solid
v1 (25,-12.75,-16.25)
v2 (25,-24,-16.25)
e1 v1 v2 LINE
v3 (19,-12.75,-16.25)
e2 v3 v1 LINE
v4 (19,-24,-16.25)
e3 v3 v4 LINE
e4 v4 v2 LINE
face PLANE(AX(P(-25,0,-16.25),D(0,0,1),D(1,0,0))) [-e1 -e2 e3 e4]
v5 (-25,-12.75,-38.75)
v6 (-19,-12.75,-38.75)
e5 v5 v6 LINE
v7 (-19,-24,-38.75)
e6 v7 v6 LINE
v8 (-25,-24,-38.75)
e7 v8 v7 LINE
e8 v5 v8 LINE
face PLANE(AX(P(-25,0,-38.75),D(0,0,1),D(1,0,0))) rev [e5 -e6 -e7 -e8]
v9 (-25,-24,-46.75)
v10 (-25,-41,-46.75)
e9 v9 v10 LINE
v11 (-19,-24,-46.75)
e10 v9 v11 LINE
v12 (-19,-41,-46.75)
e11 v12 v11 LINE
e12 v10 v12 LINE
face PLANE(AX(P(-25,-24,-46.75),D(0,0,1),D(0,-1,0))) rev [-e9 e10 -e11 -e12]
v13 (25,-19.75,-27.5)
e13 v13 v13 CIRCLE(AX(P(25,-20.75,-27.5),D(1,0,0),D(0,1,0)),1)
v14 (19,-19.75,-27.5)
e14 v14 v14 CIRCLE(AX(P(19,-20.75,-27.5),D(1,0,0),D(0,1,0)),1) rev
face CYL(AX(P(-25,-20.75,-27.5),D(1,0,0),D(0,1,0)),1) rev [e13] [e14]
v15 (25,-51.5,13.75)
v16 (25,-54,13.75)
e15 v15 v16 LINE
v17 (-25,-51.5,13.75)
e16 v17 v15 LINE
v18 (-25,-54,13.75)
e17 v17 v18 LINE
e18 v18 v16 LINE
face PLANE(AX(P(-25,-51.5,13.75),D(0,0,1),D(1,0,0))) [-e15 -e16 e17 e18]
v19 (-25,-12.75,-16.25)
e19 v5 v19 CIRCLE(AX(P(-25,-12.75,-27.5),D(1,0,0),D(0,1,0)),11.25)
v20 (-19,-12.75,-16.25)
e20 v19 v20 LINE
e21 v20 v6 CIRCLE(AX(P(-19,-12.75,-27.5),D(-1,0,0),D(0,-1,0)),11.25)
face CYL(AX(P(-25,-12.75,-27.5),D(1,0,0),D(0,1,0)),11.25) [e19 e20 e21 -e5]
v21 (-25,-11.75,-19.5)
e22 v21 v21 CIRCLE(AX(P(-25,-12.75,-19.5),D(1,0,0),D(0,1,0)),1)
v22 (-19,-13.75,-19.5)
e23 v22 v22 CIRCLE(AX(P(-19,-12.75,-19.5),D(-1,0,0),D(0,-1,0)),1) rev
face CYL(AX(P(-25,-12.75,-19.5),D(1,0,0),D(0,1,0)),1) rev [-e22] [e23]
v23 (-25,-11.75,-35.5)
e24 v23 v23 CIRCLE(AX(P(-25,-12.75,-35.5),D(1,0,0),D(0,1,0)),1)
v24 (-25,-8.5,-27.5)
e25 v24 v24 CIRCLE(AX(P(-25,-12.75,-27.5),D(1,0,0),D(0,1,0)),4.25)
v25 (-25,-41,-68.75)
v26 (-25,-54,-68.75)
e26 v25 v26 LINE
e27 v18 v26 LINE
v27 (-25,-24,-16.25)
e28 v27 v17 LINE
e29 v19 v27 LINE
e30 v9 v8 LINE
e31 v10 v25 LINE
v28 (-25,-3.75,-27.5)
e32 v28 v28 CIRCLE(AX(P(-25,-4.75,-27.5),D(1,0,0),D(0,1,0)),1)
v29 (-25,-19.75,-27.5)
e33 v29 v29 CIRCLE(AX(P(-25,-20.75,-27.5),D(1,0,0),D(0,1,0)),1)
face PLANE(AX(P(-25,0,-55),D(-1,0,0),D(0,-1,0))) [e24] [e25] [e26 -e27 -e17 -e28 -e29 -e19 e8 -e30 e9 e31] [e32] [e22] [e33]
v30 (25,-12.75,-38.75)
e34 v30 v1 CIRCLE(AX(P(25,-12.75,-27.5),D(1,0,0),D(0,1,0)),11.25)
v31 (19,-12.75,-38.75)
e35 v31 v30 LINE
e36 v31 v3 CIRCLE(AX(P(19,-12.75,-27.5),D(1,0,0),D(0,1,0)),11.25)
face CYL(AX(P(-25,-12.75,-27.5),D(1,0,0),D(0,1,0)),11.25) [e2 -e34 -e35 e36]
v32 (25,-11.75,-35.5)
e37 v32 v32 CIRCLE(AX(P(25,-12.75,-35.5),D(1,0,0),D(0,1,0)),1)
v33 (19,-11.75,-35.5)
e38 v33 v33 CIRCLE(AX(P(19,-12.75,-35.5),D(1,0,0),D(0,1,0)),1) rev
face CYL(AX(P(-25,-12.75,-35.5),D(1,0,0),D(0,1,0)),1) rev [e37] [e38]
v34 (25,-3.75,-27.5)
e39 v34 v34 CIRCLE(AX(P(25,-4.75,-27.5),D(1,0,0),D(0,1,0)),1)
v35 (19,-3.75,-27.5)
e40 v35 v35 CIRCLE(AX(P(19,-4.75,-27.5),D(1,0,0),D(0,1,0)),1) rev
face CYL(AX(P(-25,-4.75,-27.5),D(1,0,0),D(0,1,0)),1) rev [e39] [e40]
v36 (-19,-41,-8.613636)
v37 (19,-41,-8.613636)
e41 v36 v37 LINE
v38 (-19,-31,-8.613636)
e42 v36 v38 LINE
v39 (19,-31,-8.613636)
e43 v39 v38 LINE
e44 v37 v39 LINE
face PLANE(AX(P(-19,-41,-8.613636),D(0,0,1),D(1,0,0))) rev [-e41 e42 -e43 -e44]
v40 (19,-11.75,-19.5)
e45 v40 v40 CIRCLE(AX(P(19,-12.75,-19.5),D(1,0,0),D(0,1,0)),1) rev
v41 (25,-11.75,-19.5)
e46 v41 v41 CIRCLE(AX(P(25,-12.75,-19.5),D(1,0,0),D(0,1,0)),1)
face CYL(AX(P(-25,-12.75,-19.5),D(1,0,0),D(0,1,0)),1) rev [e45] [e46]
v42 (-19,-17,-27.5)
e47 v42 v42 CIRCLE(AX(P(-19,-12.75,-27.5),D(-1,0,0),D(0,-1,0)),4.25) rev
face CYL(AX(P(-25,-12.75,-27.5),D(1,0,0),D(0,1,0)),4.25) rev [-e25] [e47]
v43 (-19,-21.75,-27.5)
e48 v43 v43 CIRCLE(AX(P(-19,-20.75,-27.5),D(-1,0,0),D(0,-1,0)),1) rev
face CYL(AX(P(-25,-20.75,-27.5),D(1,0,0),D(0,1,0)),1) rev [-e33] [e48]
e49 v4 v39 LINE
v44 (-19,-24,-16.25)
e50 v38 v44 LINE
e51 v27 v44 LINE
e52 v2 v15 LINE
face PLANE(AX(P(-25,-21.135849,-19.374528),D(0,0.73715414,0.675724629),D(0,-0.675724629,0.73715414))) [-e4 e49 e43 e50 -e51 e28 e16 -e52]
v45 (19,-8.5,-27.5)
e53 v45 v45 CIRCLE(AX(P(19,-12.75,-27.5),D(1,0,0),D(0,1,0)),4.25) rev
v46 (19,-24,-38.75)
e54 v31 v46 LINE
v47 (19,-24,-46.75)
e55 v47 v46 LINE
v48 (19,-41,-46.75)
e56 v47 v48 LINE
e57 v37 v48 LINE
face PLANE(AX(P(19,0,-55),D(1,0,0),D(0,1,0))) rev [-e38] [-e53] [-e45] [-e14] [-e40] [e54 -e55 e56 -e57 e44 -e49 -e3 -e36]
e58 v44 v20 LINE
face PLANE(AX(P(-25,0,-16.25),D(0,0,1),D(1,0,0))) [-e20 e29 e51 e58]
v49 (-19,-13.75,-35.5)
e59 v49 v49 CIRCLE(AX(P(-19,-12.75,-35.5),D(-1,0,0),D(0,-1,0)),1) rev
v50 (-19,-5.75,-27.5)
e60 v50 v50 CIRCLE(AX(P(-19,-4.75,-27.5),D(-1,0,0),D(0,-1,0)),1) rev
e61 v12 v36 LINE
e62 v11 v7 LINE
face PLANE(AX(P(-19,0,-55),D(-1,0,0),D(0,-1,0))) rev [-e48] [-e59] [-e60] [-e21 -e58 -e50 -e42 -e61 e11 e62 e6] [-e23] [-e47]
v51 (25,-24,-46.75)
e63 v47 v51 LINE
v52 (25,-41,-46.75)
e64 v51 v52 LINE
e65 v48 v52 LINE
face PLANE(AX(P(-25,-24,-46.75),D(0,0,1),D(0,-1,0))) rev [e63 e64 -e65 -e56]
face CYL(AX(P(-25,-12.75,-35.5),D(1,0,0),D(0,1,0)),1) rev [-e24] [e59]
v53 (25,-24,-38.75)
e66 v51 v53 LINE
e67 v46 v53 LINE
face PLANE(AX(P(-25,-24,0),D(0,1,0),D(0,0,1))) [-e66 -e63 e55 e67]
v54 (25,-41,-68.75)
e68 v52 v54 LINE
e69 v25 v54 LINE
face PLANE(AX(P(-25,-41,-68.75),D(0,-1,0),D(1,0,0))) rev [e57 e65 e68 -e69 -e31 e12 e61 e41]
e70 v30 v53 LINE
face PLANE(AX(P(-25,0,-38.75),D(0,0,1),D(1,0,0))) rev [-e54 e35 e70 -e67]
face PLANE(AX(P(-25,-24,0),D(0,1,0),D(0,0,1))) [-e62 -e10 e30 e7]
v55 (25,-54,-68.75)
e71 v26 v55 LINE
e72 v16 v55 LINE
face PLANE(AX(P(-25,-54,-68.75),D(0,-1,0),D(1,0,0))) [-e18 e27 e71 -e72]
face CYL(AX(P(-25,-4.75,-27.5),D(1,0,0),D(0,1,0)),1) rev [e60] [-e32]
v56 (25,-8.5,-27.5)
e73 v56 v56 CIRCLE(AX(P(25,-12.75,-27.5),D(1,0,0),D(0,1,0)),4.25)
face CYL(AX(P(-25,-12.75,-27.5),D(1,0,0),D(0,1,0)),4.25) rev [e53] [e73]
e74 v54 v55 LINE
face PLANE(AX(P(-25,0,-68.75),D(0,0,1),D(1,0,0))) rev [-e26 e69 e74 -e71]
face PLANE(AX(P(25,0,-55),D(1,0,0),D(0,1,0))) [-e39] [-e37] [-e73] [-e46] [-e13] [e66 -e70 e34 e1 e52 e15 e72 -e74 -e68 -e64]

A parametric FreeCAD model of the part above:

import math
import FreeCAD as App
import Part
import Sketcher

V = App.Vector

doc = App.newDocument("Part")
body = doc.addObject("PartDesign::Body", "Body")

sketch1 = body.newObject("Sketcher::SketchObject", "Sketch")
sketch1.AttachmentSupport = (doc.getObject("XY_Plane"), [""])
sketch1.MapMode = "FlatFace"
sketch1.addGeometry(Part.LineSegment(V(-25, 0, 0), V(-25, -170, 0)), False)
sketch1.addGeometry(Part.LineSegment(V(-25, -170, 0), V(25, -170, 0)), False)
sketch1.addGeometry(Part.LineSegment(V(25, -170, 0), V(25, 0, 0)), False)
sketch1.addGeometry(Part.LineSegment(V(25, 0, 0), V(-25, 0, 0)), False)
sketch1.addConstraint(Sketcher.Constraint("Coincident", 0, 2, 1, 1))
sketch1.addConstraint(Sketcher.Constraint("Coincident", 1, 2, 2, 1))
sketch1.addConstraint(Sketcher.Constraint("Coincident", 2, 2, 3, 1))
sketch1.addConstraint(Sketcher.Constraint("Coincident", 3, 2, 0, 1))
sketch1.addConstraint(Sketcher.Constraint("Vertical", 0))
sketch1.addConstraint(Sketcher.Constraint("Horizontal", 1))
sketch1.addConstraint(Sketcher.Constraint("Vertical", 2))
sketch1.addConstraint(Sketcher.Constraint("Horizontal", 3))
sketch1.addConstraint(Sketcher.Constraint("Symmetric", 2, 2, 3, 2, -1, 1))
sketch1.addConstraint(Sketcher.Constraint("DistanceX", 1, 1, 1, 2, 50.0))
sketch1.addConstraint(Sketcher.Constraint("DistanceY", 0, 2, 0, 1, 170.0))
pad1 = body.newObject("PartDesign::Pad", "Pad")
pad1.Profile = sketch1
pad1.Length = 55
pad1.Reversed = True

sketch2 = body.newObject("Sketcher::SketchObject", "Sketch001")
sketch2.AttachmentSupport = (doc.getObject("XY_Plane"), [""])
sketch2.MapMode = "FlatFace"
sketch2.addGeometry(Part.LineSegment(V(-17, 0, 0), V(-17, -27, 0)), False)
sketch2.addGeometry(Part.LineSegment(V(-17, -27, 0), V(17, -27, 0)), False)
sketch2.addGeometry(Part.LineSegment(V(17, -27, 0), V(17, 0, 0)), False)
sketch2.addGeometry(Part.LineSegment(V(17, 0, 0), V(-17, 0, 0)), False)
sketch2.addConstraint(Sketcher.Constraint("Coincident", 0, 2, 1, 1))
sketch2.addConstraint(Sketcher.Constraint("Coincident", 1, 2, 2, 1))
sketch2.addConstraint(Sketcher.Constraint("Coincident", 2, 2, 3, 1))
sketch2.addConstraint(Sketcher.Constraint("Coincident", 3, 2, 0, 1))
sketch2.addConstraint(Sketcher.Constraint("Vertical", 0))
sketch2.addConstraint(Sketcher.Constraint("Horizontal", 1))
sketch2.addConstraint(Sketcher.Constraint("Vertical", 2))
sketch2.addConstraint(Sketcher.Constraint("Horizontal", 3))
sketch2.addConstraint(Sketcher.Constraint("Symmetric", 2, 2, 3, 2, -1, 1))
sketch2.addConstraint(Sketcher.Constraint("DistanceX", 1, 1, 1, 2, 34.0))
sketch2.addConstraint(Sketcher.Constraint("DistanceY", 0, 2, 0, 1, 27.0))
pocket1 = body.newObject("PartDesign::Pocket", "Pocket")
pocket1.Profile = sketch2
pocket1.Type = "ThroughAll"

sketch3 = body.newObject("Sketcher::SketchObject", "Sketch002")
sketch3.AttachmentSupport = (doc.getObject("YZ_Plane"), [""])
sketch3.MapMode = "FlatFace"
sketch3.AttachmentOffset = App.Placement(V(0, 0, 25), App.Rotation())
sketch3.addGeometry(Part.LineSegment(V(0, -45, 0), V(-24, -45, 0)), False)
sketch3.addGeometry(Part.LineSegment(V(-24, -45, 0), V(-24, -55, 0)), False)
sketch3.addGeometry(Part.LineSegment(V(-24, -55, 0), V(0, -55, 0)), False)
sketch3.addGeometry(Part.LineSegment(V(0, -55, 0), V(0, -45, 0)), False)
sketch3.addGeometry(Part.LineSegment(V(0, 0, 0), V(-24, 0, 0)), False)
sketch3.addGeometry(Part.LineSegment(V(-24, 0, 0), V(-24, -10, 0)), False)
sketch3.addGeometry(Part.LineSegment(V(-24, -10, 0), V(0, -10, 0)), False)
sketch3.addGeometry(Part.LineSegment(V(0, -10, 0), V(0, 0, 0)), False)
sketch3.addGeometry(Part.Circle(V(-12.8, -27.5, 0), V(0, 0, 1), 4.2), False)
sketch3.addGeometry(Part.Circle(V(-12.8, -35.5, 0), V(0, 0, 1), 1), False)
sketch3.addGeometry(Part.Circle(V(-4.8, -27.5, 0), V(0, 0, 1), 1), False)
sketch3.addGeometry(Part.Circle(V(-20.8, -27.5, 0), V(0, 0, 1), 1), False)
sketch3.addGeometry(Part.Circle(V(-12.8, -19.5, 0), V(0, 0, 1), 1), False)
sketch3.addConstraint(Sketcher.Constraint("Coincident", 0, 2, 1, 1))
sketch3.addConstraint(Sketcher.Constraint("Coincident", 1, 2, 2, 1))
sketch3.addConstraint(Sketcher.Constraint("Coincident", 2, 2, 3, 1))
sketch3.addConstraint(Sketcher.Constraint("Coincident", 3, 2, 0, 1))
sketch3.addConstraint(Sketcher.Constraint("Coincident", 4, 2, 5, 1))
sketch3.addConstraint(Sketcher.Constraint("Coincident", 5, 2, 6, 1))
sketch3.addConstraint(Sketcher.Constraint("Coincident", 6, 2, 7, 1))
sketch3.addConstraint(Sketcher.Constraint("Coincident", 7, 2, 4, 1))
sketch3.addConstraint(Sketcher.Constraint("Horizontal", 0))
sketch3.addConstraint(Sketcher.Constraint("Vertical", 1))
sketch3.addConstraint(Sketcher.Constraint("Horizontal", 2))
sketch3.addConstraint(Sketcher.Constraint("Vertical", 3))
sketch3.addConstraint(Sketcher.Constraint("Horizontal", 4))
sketch3.addConstraint(Sketcher.Constraint("Vertical", 5))
sketch3.addConstraint(Sketcher.Constraint("Horizontal", 6))
sketch3.addConstraint(Sketcher.Constraint("Vertical", 7))
sketch3.addConstraint(Sketcher.Constraint("Coincident", 7, 2, -1, 1))
sketch3.addConstraint(Sketcher.Constraint("Equal", 9, 10))
sketch3.addConstraint(Sketcher.Constraint("Equal", 10, 11))
sketch3.addConstraint(Sketcher.Constraint("Equal", 11, 12))
sketch3.addConstraint(Sketcher.Constraint("PointOnObject", 2, 2, -2))
sketch3.addConstraint(Sketcher.Constraint("Horizontal", 8, 3, 10, 3))
sketch3.addConstraint(Sketcher.Constraint("Horizontal", 10, 3, 11, 3))
sketch3.addConstraint(Sketcher.Constraint("Vertical", 8, 3, 9, 3))
sketch3.addConstraint(Sketcher.Constraint("Vertical", 9, 3, 12, 3))
sketch3.addConstraint(Sketcher.Constraint("Vertical", 1, 2, 4, 2))
sketch3.addConstraint(Sketcher.Constraint("Equal", 3, 5))
sketch3.addConstraint(Sketcher.Constraint("Diameter", 9, 2.0))
sketch3.addConstraint(Sketcher.Constraint("Diameter", 8, 8.5))
sketch3.addConstraint(Sketcher.Constraint("DistanceX", 0, 2, 0, 1, 24.0))
sketch3.addConstraint(Sketcher.Constraint("DistanceY", 1, 2, 1, 1, 10.0))
sketch3.addConstraint(Sketcher.Constraint("DistanceY", 0, 2, -1, 1, 45.0))
sketch3.addConstraint(Sketcher.Constraint("DistanceY", 9, 3, 8, 3, 8.0))
sketch3.addConstraint(Sketcher.Constraint("DistanceX", 8, 3, 10, 3, 8.0))
sketch3.addConstraint(Sketcher.Constraint("DistanceX", 11, 3, 8, 3, 8.0))
sketch3.addConstraint(Sketcher.Constraint("DistanceY", 8, 3, 12, 3, 8.0))
sketch3.addConstraint(Sketcher.Constraint("DistanceY", 8, 3, -1, 1, 27.5))
sketch3.addConstraint(Sketcher.Constraint("DistanceX", 8, 3, -1, 1, 12.75))
pocket2 = body.newObject("PartDesign::Pocket", "Pocket001")
pocket2.Profile = sketch3
pocket2.Type = "ThroughAll"

sketch4 = body.newObject("Sketcher::SketchObject", "Sketch003")
sketch4.AttachmentSupport = (doc.getObject("XY_Plane"), [""])
sketch4.MapMode = "FlatFace"
sketch4.AttachmentOffset = App.Placement(V(0, 0, -10), App.Rotation())
sketch4.addGeometry(Part.LineSegment(V(-19, 0, 0), V(-19, -24, 0)), False)
sketch4.addGeometry(Part.LineSegment(V(-19, -24, 0), V(-17, -24, 0)), False)
sketch4.addGeometry(Part.LineSegment(V(-17, -24, 0), V(-17, 0, 0)), False)
sketch4.addGeometry(Part.LineSegment(V(-17, 0, 0), V(-19, 0, 0)), False)
sketch4.addGeometry(Part.LineSegment(V(17, 0, 0), V(17, -24, 0)), False)
sketch4.addGeometry(Part.LineSegment(V(17, -24, 0), V(19, -24, 0)), False)
sketch4.addGeometry(Part.LineSegment(V(19, -24, 0), V(19, 0, 0)), False)
sketch4.addGeometry(Part.LineSegment(V(19, 0, 0), V(17, 0, 0)), False)
sketch4.addConstraint(Sketcher.Constraint("Coincident", 0, 2, 1, 1))
sketch4.addConstraint(Sketcher.Constraint("Coincident", 1, 2, 2, 1))
sketch4.addConstraint(Sketcher.Constraint("Coincident", 2, 2, 3, 1))
sketch4.addConstraint(Sketcher.Constraint("Coincident", 3, 2, 0, 1))
sketch4.addConstraint(Sketcher.Constraint("Coincident", 4, 2, 5, 1))
sketch4.addConstraint(Sketcher.Constraint("Coincident", 5, 2, 6, 1))
sketch4.addConstraint(Sketcher.Constraint("Coincident", 6, 2, 7, 1))
sketch4.addConstraint(Sketcher.Constraint("Coincident", 7, 2, 4, 1))
sketch4.addConstraint(Sketcher.Constraint("Vertical", 0))
sketch4.addConstraint(Sketcher.Constraint("Horizontal", 1))
sketch4.addConstraint(Sketcher.Constraint("Vertical", 2))
sketch4.addConstraint(Sketcher.Constraint("Horizontal", 3))
sketch4.addConstraint(Sketcher.Constraint("Vertical", 4))
sketch4.addConstraint(Sketcher.Constraint("Horizontal", 5))
sketch4.addConstraint(Sketcher.Constraint("Vertical", 6))
sketch4.addConstraint(Sketcher.Constraint("Horizontal", 7))
sketch4.addConstraint(Sketcher.Constraint("Symmetric", 3, 2, 6, 2, -1, 1))
sketch4.addConstraint(Sketcher.Constraint("Symmetric", 1, 2, 4, 2, -2))
sketch4.addConstraint(Sketcher.Constraint("PointOnObject", 2, 2, -1))
sketch4.addConstraint(Sketcher.Constraint("DistanceX", 1, 1, 1, 2, 2.0))
sketch4.addConstraint(Sketcher.Constraint("DistanceY", 0, 2, 0, 1, 24.0))
sketch4.addConstraint(Sketcher.Constraint("DistanceX", 0, 2, -1, 1, 19.0))
pocket3 = body.newObject("PartDesign::Pocket", "Pocket002")
pocket3.Profile = sketch4
pocket3.Type = "ThroughAll"

sketch5 = body.newObject("Sketcher::SketchObject", "Sketch004")
sketch5.AttachmentSupport = (doc.getObject("YZ_Plane"), [""])
sketch5.MapMode = "FlatFace"
sketch5.AttachmentOffset = App.Placement(V(0, 0, 25), App.Rotation())
sketch5.addGeometry(Part.LineSegment(V(0, -45, 0), V(0, -10, 0)), False)
sketch5.addGeometry(Part.LineSegment(V(0, -10, 0), V(-24, -10, 0)), False)
sketch5.addGeometry(Part.LineSegment(V(-24, -10, 0), V(-24, -16, 0)), False)
sketch5.addGeometry(Part.LineSegment(V(-24, -16, 0), V(-13, -16, 0)), False)
sketch5.addGeometry(Part.ArcOfCircle(Part.Circle(V(-13, -28, 0), V(0, 0, 1), 11), math.radians(-90), math.radians(90)), False)
sketch5.addGeometry(Part.LineSegment(V(-13, -39, 0), V(-24, -39, 0)), False)
sketch5.addGeometry(Part.LineSegment(V(-24, -39, 0), V(-24, -45, 0)), False)
sketch5.addGeometry(Part.LineSegment(V(-24, -45, 0), V(0, -45, 0)), False)
sketch5.addConstraint(Sketcher.Constraint("Coincident", 0, 2, 1, 1))
sketch5.addConstraint(Sketcher.Constraint("Coincident", 1, 2, 2, 1))
sketch5.addConstraint(Sketcher.Constraint("Coincident", 2, 2, 3, 1))
sketch5.addConstraint(Sketcher.Constraint("Tangent", 3, 2, 4, 2))
sketch5.addConstraint(Sketcher.Constraint("Tangent", 4, 1, 5, 1))
sketch5.addConstraint(Sketcher.Constraint("Coincident", 5, 2, 6, 1))
sketch5.addConstraint(Sketcher.Constraint("Coincident", 6, 2, 7, 1))
sketch5.addConstraint(Sketcher.Constraint("Coincident", 7, 2, 0, 1))
sketch5.addConstraint(Sketcher.Constraint("Vertical", 0))
sketch5.addConstraint(Sketcher.Constraint("Horizontal", 1))
sketch5.addConstraint(Sketcher.Constraint("Vertical", 2))
sketch5.addConstraint(Sketcher.Constraint("Horizontal", 3))
sketch5.addConstraint(Sketcher.Constraint("Horizontal", 5))
sketch5.addConstraint(Sketcher.Constraint("Vertical", 6))
sketch5.addConstraint(Sketcher.Constraint("Horizontal", 7))
sketch5.addConstraint(Sketcher.Constraint("PointOnObject", 0, 2, -2))
sketch5.addConstraint(Sketcher.Constraint("Vertical", 2, 2, 5, 2))
sketch5.addConstraint(Sketcher.Constraint("Equal", 2, 6))
sketch5.addConstraint(Sketcher.Constraint("DistanceX", 1, 2, 1, 1, 24.0))
sketch5.addConstraint(Sketcher.Constraint("DistanceY", 0, 1, 0, 2, 35.0))
sketch5.addConstraint(Sketcher.Constraint("Radius", 4, 11.25))
sketch5.addConstraint(Sketcher.Constraint("DistanceY", 0, 2, -1, 1, 10.0))
sketch5.addConstraint(Sketcher.Constraint("DistanceX", 3, 1, 3, 2, 11.25))
pocket4 = body.newObject("PartDesign::Pocket", "Pocket003")
pocket4.Profile = sketch5
pocket4.Type = "ThroughAll"

sketch6 = body.newObject("Sketcher::SketchObject", "Sketch005")
sketch6.AttachmentSupport = (doc.getObject("XY_Plane"), [""])
sketch6.MapMode = "FlatFace"
sketch6.addGeometry(Part.LineSegment(V(-19, -24, 0), V(-19, -34, 0)), False)
sketch6.addGeometry(Part.LineSegment(V(-19, -34, 0), V(19, -34, 0)), False)
sketch6.addGeometry(Part.LineSegment(V(19, -34, 0), V(19, -24, 0)), False)
sketch6.addGeometry(Part.LineSegment(V(19, -24, 0), V(-19, -24, 0)), False)
sketch6.addConstraint(Sketcher.Constraint("Coincident", 0, 2, 1, 1))
sketch6.addConstraint(Sketcher.Constraint("Coincident", 1, 2, 2, 1))
sketch6.addConstraint(Sketcher.Constraint("Coincident", 2, 2, 3, 1))
sketch6.addConstraint(Sketcher.Constraint("Coincident", 3, 2, 0, 1))
sketch6.addConstraint(Sketcher.Constraint("Vertical", 0))
sketch6.addConstraint(Sketcher.Constraint("Horizontal", 1))
sketch6.addConstraint(Sketcher.Constraint("Vertical", 2))
sketch6.addConstraint(Sketcher.Constraint("Horizontal", 3))
sketch6.addConstraint(Sketcher.Constraint("DistanceX", 1, 1, 1, 2, 38.0))
sketch6.addConstraint(Sketcher.Constraint("DistanceY", 0, 2, 0, 1, 10.0))
sketch6.addConstraint(Sketcher.Constraint("DistanceX", 0, 2, -1, 1, 19.0))
sketch6.addConstraint(Sketcher.Constraint("DistanceY", 0, 2, -1, 1, 34.0))
pocket5 = body.newObject("PartDesign::Pocket", "Pocket004")
pocket5.Profile = sketch6
pocket5.Type = "ThroughAll"

sketch7 = body.newObject("Sketcher::SketchObject", "Sketch006")
sketch7.AttachmentSupport = (doc.getObject("YZ_Plane"), [""])
sketch7.MapMode = "FlatFace"
sketch7.AttachmentOffset = App.Placement(V(0, 0, 25), App.Rotation())
sketch7.addGeometry(Part.LineSegment(V(-132.5, -13.2, 0), V(-167.8, -13.2, 0)), False)
sketch7.addGeometry(Part.LineSegment(V(-167.8, -13.2, 0), V(-167.8, 0, 0)), False)
sketch7.addGeometry(Part.LineSegment(V(-167.8, 0, 0), V(-170, 0, 0)), False)
sketch7.addGeometry(Part.LineSegment(V(-170, 0, 0), V(-170, -55, 0)), False)
sketch7.addGeometry(Part.LineSegment(V(-170, -55, 0), V(-167.8, -55, 0)), False)
sketch7.addGeometry(Part.LineSegment(V(-167.8, -55, 0), V(-167.8, -41.8, 0)), False)
sketch7.addGeometry(Part.LineSegment(V(-167.8, -41.8, 0), V(-132.5, -41.8, 0)), False)
sketch7.addGeometry(Part.LineSegment(V(-132.5, -41.8, 0), V(-132.5, -13.2, 0)), False)
sketch7.addConstraint(Sketcher.Constraint("Coincident", 0, 2, 1, 1))
sketch7.addConstraint(Sketcher.Constraint("Coincident", 1, 2, 2, 1))
sketch7.addConstraint(Sketcher.Constraint("Coincident", 2, 2, 3, 1))
sketch7.addConstraint(Sketcher.Constraint("Coincident", 3, 2, 4, 1))
sketch7.addConstraint(Sketcher.Constraint("Coincident", 4, 2, 5, 1))
sketch7.addConstraint(Sketcher.Constraint("Coincident", 5, 2, 6, 1))
sketch7.addConstraint(Sketcher.Constraint("Coincident", 6, 2, 7, 1))
sketch7.addConstraint(Sketcher.Constraint("Coincident", 7, 2, 0, 1))
sketch7.addConstraint(Sketcher.Constraint("Horizontal", 0))
sketch7.addConstraint(Sketcher.Constraint("Vertical", 1))
sketch7.addConstraint(Sketcher.Constraint("Horizontal", 2))
sketch7.addConstraint(Sketcher.Constraint("Vertical", 3))
sketch7.addConstraint(Sketcher.Constraint("Horizontal", 4))
sketch7.addConstraint(Sketcher.Constraint("Vertical", 5))
sketch7.addConstraint(Sketcher.Constraint("Horizontal", 6))
sketch7.addConstraint(Sketcher.Constraint("Vertical", 7))
sketch7.addConstraint(Sketcher.Constraint("PointOnObject", 1, 2, -1))
sketch7.addConstraint(Sketcher.Constraint("Vertical", 1, 2, 4, 2))
sketch7.addConstraint(Sketcher.Constraint("Equal", 1, 5))
sketch7.addConstraint(Sketcher.Constraint("DistanceY", 3, 2, 3, 1, 55.0))
sketch7.addConstraint(Sketcher.Constraint("DistanceY", 7, 1, 7, 2, 28.5))
sketch7.addConstraint(Sketcher.Constraint("DistanceX", 2, 2, -1, 1, 170.0))
sketch7.addConstraint(Sketcher.Constraint("DistanceX", 0, 2, 0, 1, 35.25))
sketch7.addConstraint(Sketcher.Constraint("DistanceX", 2, 2, 2, 1, 2.25))
pocket6 = body.newObject("PartDesign::Pocket", "Pocket005")
pocket6.Profile = sketch7
pocket6.Type = "ThroughAll"

sketch8 = body.newObject("Sketcher::SketchObject", "Sketch007")
sketch8.AttachmentSupport = (doc.getObject("XY_Plane"), [""])
sketch8.MapMode = "FlatFace"
sketch8.addGeometry(Part.LineSegment(V(-17, -132, 0), V(-17, -168, 0)), False)
sketch8.addGeometry(Part.LineSegment(V(-17, -168, 0), V(17, -168, 0)), False)
sketch8.addGeometry(Part.LineSegment(V(17, -168, 0), V(17, -132, 0)), False)
sketch8.addGeometry(Part.LineSegment(V(17, -132, 0), V(-17, -132, 0)), False)
sketch8.addConstraint(Sketcher.Constraint("Coincident", 0, 2, 1, 1))
sketch8.addConstraint(Sketcher.Constraint("Coincident", 1, 2, 2, 1))
sketch8.addConstraint(Sketcher.Constraint("Coincident", 2, 2, 3, 1))
sketch8.addConstraint(Sketcher.Constraint("Coincident", 3, 2, 0, 1))
sketch8.addConstraint(Sketcher.Constraint("Vertical", 0))
sketch8.addConstraint(Sketcher.Constraint("Horizontal", 1))
sketch8.addConstraint(Sketcher.Constraint("Vertical", 2))
sketch8.addConstraint(Sketcher.Constraint("Horizontal", 3))
sketch8.addConstraint(Sketcher.Constraint("DistanceX", 1, 1, 1, 2, 34.0))
sketch8.addConstraint(Sketcher.Constraint("DistanceX", 0, 2, -1, 1, 17.0))
sketch8.addConstraint(Sketcher.Constraint("DistanceY", 0, 2, 0, 1, 35.25))
sketch8.addConstraint(Sketcher.Constraint("DistanceY", 2, 2, -1, 1, 132.5))
pocket7 = body.newObject("PartDesign::Pocket", "Pocket006")
pocket7.Profile = sketch8
pocket7.Type = "ThroughAll"

sketch9 = body.newObject("Sketcher::SketchObject", "Sketch008")
sketch9.AttachmentSupport = (doc.getObject("YZ_Plane"), [""])
sketch9.MapMode = "FlatFace"
sketch9.AttachmentOffset = App.Placement(V(0, 0, 25), App.Rotation())
sketch9.addGeometry(Part.ArcOfCircle(Part.Circle(V(-168, -28, 0), V(0, 0, 1), 10), math.radians(0), math.radians(90)), False)
sketch9.addGeometry(Part.ArcOfCircle(Part.Circle(V(-168, -27, 0), V(0, 0, 1), 10), math.radians(-90), math.radians(0)), False)
sketch9.addGeometry(Part.LineSegment(V(-168, -38, 0), V(-168, -55, 0)), False)
sketch9.addGeometry(Part.LineSegment(V(-168, -55, 0), V(-148, -55, 0)), False)
sketch9.addGeometry(Part.LineSegment(V(-148, -55, 0), V(-148, 0, 0)), False)
sketch9.addGeometry(Part.LineSegment(V(-148, 0, 0), V(-168, 0, 0)), False)
sketch9.addGeometry(Part.LineSegment(V(-168, 0, 0), V(-168, -17, 0)), False)
sketch9.addConstraint(Sketcher.Constraint("Tangent", 0, 1, 1, 2))
sketch9.addConstraint(Sketcher.Constraint("Coincident", 1, 1, 2, 1))
sketch9.addConstraint(Sketcher.Constraint("Coincident", 2, 2, 3, 1))
sketch9.addConstraint(Sketcher.Constraint("Coincident", 3, 2, 4, 1))
sketch9.addConstraint(Sketcher.Constraint("Coincident", 4, 2, 5, 1))
sketch9.addConstraint(Sketcher.Constraint("Coincident", 5, 2, 6, 1))
sketch9.addConstraint(Sketcher.Constraint("Coincident", 6, 2, 0, 2))
sketch9.addConstraint(Sketcher.Constraint("Vertical", 2))
sketch9.addConstraint(Sketcher.Constraint("Horizontal", 3))
sketch9.addConstraint(Sketcher.Constraint("Vertical", 4))
sketch9.addConstraint(Sketcher.Constraint("Horizontal", 5))
sketch9.addConstraint(Sketcher.Constraint("Vertical", 6))
sketch9.addConstraint(Sketcher.Constraint("Equal", 0, 1))
sketch9.addConstraint(Sketcher.Constraint("PointOnObject", 4, 2, -1))
sketch9.addConstraint(Sketcher.Constraint("Horizontal", 1, 3, 0, 1))
sketch9.addConstraint(Sketcher.Constraint("Vertical", 0, 3, 1, 1))
sketch9.addConstraint(Sketcher.Constraint("Vertical", 2, 2, 5, 2))
sketch9.addConstraint(Sketcher.Constraint("Equal", 2, 6))
sketch9.addConstraint(Sketcher.Constraint("DistanceY", 4, 1, 4, 2, 55.0))
sketch9.addConstraint(Sketcher.Constraint("Radius", 0, 10.25))
sketch9.addConstraint(Sketcher.Constraint("DistanceX", 0, 1, 3, 2, 10.0))
sketch9.addConstraint(Sketcher.Constraint("DistanceX", 0, 1, -1, 1, 157.5))
pocket8 = body.newObject("PartDesign::Pocket", "Pocket007")
pocket8.Profile = sketch9
pocket8.Type = "ThroughAll"

sketch10 = body.newObject("Sketcher::SketchObject", "Sketch009")
sketch10.AttachmentSupport = (doc.getObject("YZ_Plane"), [""])
sketch10.MapMode = "FlatFace"
sketch10.AttachmentOffset = App.Placement(V(0, 0, 25), App.Rotation())
sketch10.addGeometry(Part.LineSegment(V(-132, -13, 0), V(-148, -13, 0)), False)
sketch10.addGeometry(Part.LineSegment(V(-148, -13, 0), V(-148, -42, 0)), False)
sketch10.addGeometry(Part.LineSegment(V(-148, -42, 0), V(-132, -42, 0)), False)
sketch10.addGeometry(Part.LineSegment(V(-132, -42, 0), V(-132, -13, 0)), False)
sketch10.addConstraint(Sketcher.Constraint("Coincident", 0, 2, 1, 1))
sketch10.addConstraint(Sketcher.Constraint("Coincident", 1, 2, 2, 1))
sketch10.addConstraint(Sketcher.Constraint("Coincident", 2, 2, 3, 1))
sketch10.addConstraint(Sketcher.Constraint("Coincident", 3, 2, 0, 1))
sketch10.addConstraint(Sketcher.Constraint("Horizontal", 0))
sketch10.addConstraint(Sketcher.Constraint("Vertical", 1))
sketch10.addConstraint(Sketcher.Constraint("Horizontal", 2))
sketch10.addConstraint(Sketcher.Constraint("Vertical", 3))
sketch10.addConstraint(Sketcher.Constraint("DistanceX", 0, 2, 0, 1, 15.0))
sketch10.addConstraint(Sketcher.Constraint("DistanceY", 1, 2, 1, 1, 28.5))
sketch10.addConstraint(Sketcher.Constraint("DistanceX", 0, 2, -1, 1, 147.5))
sketch10.addConstraint(Sketcher.Constraint("DistanceY", 0, 2, -1, 1, 13.25))
pad2 = body.newObject("PartDesign::Pad", "Pad001")
pad2.Profile = sketch10
pad2.Length = 8
pad2.Reversed = True
doc.recompute()

mirrored = body.newObject("PartDesign::Mirrored", "Mirrored")
mirrored.Originals = [pad2]
mirrored.MirrorPlane = (doc.getObject("YZ_Plane"), [""])
body.Tip = mirrored

sketch11 = body.newObject("Sketcher::SketchObject", "Sketch010")
sketch11.AttachmentSupport = (doc.getObject("XY_Plane"), [""])
sketch11.MapMode = "FlatFace"
sketch11.addGeometry(Part.LineSegment(V(-17, -132, 0), V(-17, -158, 0)), False)
sketch11.addGeometry(Part.LineSegment(V(-17, -158, 0), V(17, -158, 0)), False)
sketch11.addGeometry(Part.LineSegment(V(17, -158, 0), V(17, -132, 0)), False)
sketch11.addGeometry(Part.LineSegment(V(17, -132, 0), V(-17, -132, 0)), False)
sketch11.addConstraint(Sketcher.Constraint("Coincident", 0, 2, 1, 1))
sketch11.addConstraint(Sketcher.Constraint("Coincident", 1, 2, 2, 1))
sketch11.addConstraint(Sketcher.Constraint("Coincident", 2, 2, 3, 1))
sketch11.addConstraint(Sketcher.Constraint("Coincident", 3, 2, 0, 1))
sketch11.addConstraint(Sketcher.Constraint("Vertical", 0))
sketch11.addConstraint(Sketcher.Constraint("Horizontal", 1))
sketch11.addConstraint(Sketcher.Constraint("Vertical", 2))
sketch11.addConstraint(Sketcher.Constraint("Horizontal", 3))
sketch11.addConstraint(Sketcher.Constraint("DistanceX", 1, 1, 1, 2, 34.0))
sketch11.addConstraint(Sketcher.Constraint("DistanceX", 0, 2, -1, 1, 17.0))
sketch11.addConstraint(Sketcher.Constraint("DistanceY", 0, 2, 0, 1, 25.25))
sketch11.addConstraint(Sketcher.Constraint("DistanceY", 2, 2, -1, 1, 132.5))
pad3 = body.newObject("PartDesign::Pad", "Pad002")
pad3.Profile = sketch11
pad3.Length = 13.25
pad3.Reversed = True
doc.recompute()

datumplane = body.newObject("PartDesign::Plane", "DatumPlane")
datumplane.AttachmentSupport = (doc.getObject("XY_Plane"), [""])
datumplane.MapMode = "FlatFace"
datumplane.AttachmentOffset = App.Placement(V(0, 0, -27.5), App.Rotation())
mirrored2 = body.newObject("PartDesign::Mirrored", "Mirrored001")
mirrored2.Originals = [pad3]
mirrored2.MirrorPlane = (datumplane, [""])
body.Tip = mirrored2

sketch12 = body.newObject("Sketcher::SketchObject", "Sketch011")
sketch12.AttachmentSupport = (doc.getObject("YZ_Plane"), [""])
sketch12.MapMode = "FlatFace"
sketch12.AttachmentOffset = App.Placement(V(0, 0, 25), App.Rotation())
sketch12.addGeometry(Part.Circle(V(-135.8, -16.5, 0), V(0, 0, 1), 4.5), False)
sketch12.addGeometry(Part.Circle(V(-135.8, -38.5, 0), V(0, 0, 1), 4.5), False)
sketch12.addConstraint(Sketcher.Constraint("Equal", 0, 1))
sketch12.addConstraint(Sketcher.Constraint("Vertical", 0, 3, 1, 3))
sketch12.addConstraint(Sketcher.Constraint("Diameter", 0, 9.0))
sketch12.addConstraint(Sketcher.Constraint("DistanceY", 1, 3, 0, 3, 22.0))
sketch12.addConstraint(Sketcher.Constraint("DistanceY", 0, 3, -1, 1, 16.5))
sketch12.addConstraint(Sketcher.Constraint("DistanceX", 0, 3, -1, 1, 135.75))
pocket9 = body.newObject("PartDesign::Pocket", "Pocket008")
pocket9.Profile = sketch12
pocket9.Length = 8
doc.recompute()

mirrored3 = body.newObject("PartDesign::Mirrored", "Mirrored002")
mirrored3.Originals = [pocket9]
mirrored3.MirrorPlane = (doc.getObject("YZ_Plane"), [""])
body.Tip = mirrored3

sketch13 = body.newObject("Sketcher::SketchObject", "Sketch012")
sketch13.AttachmentSupport = (doc.getObject("YZ_Plane"), [""])
sketch13.MapMode = "FlatFace"
sketch13.AttachmentOffset = App.Placement(V(0, 0, 25), App.Rotation())
sketch13.addGeometry(Part.LineSegment(V(-52, -55, 0), V(-52, 0, 0)), False)
sketch13.addGeometry(Part.LineSegment(V(-52, 0, 0), V(-158, 0, 0)), False)
sketch13.addGeometry(Part.LineSegment(V(-158, 0, 0), V(-158, -55, 0)), False)
sketch13.addGeometry(Part.LineSegment(V(-158, -55, 0), V(-52, -55, 0)), False)
sketch13.addConstraint(Sketcher.Constraint("Coincident", 0, 2, 1, 1))
sketch13.addConstraint(Sketcher.Constraint("Coincident", 1, 2, 2, 1))
sketch13.addConstraint(Sketcher.Constraint("Coincident", 2, 2, 3, 1))
sketch13.addConstraint(Sketcher.Constraint("Coincident", 3, 2, 0, 1))
sketch13.addConstraint(Sketcher.Constraint("Vertical", 0))
sketch13.addConstraint(Sketcher.Constraint("Horizontal", 1))
sketch13.addConstraint(Sketcher.Constraint("Vertical", 2))
sketch13.addConstraint(Sketcher.Constraint("Horizontal", 3))
sketch13.addConstraint(Sketcher.Constraint("PointOnObject", 0, 2, -1))
sketch13.addConstraint(Sketcher.Constraint("DistanceY", 0, 1, 0, 2, 55.0))
sketch13.addConstraint(Sketcher.Constraint("DistanceX", 1, 2, 1, 1, 106.25))
sketch13.addConstraint(Sketcher.Constraint("DistanceX", 0, 2, -1, 1, 51.5))
pocket10 = body.newObject("PartDesign::Pocket", "Pocket009")
pocket10.Profile = sketch13
pocket10.Length = 175.384812

sketch14 = body.newObject("Sketcher::SketchObject", "Sketch013")
sketch14.AttachmentSupport = (doc.getObject("YZ_Plane"), [""])
sketch14.MapMode = "FlatFace"
sketch14.AttachmentOffset = App.Placement(V(0, 0, 25), App.Rotation())
sketch14.addGeometry(Part.LineSegment(V(-24, 71, 0), V(-52, 71, 0)), False)
sketch14.addGeometry(Part.LineSegment(V(-52, 71, 0), V(-52, -69, 0)), False)
sketch14.addGeometry(Part.LineSegment(V(-52, -69, 0), V(-24, -69, 0)), False)
sketch14.addGeometry(Part.LineSegment(V(-24, -69, 0), V(-24, 71, 0)), False)
sketch14.addConstraint(Sketcher.Constraint("Coincident", 0, 2, 1, 1))
sketch14.addConstraint(Sketcher.Constraint("Coincident", 1, 2, 2, 1))
sketch14.addConstraint(Sketcher.Constraint("Coincident", 2, 2, 3, 1))
sketch14.addConstraint(Sketcher.Constraint("Coincident", 3, 2, 0, 1))
sketch14.addConstraint(Sketcher.Constraint("Horizontal", 0))
sketch14.addConstraint(Sketcher.Constraint("Vertical", 1))
sketch14.addConstraint(Sketcher.Constraint("Horizontal", 2))
sketch14.addConstraint(Sketcher.Constraint("Vertical", 3))
sketch14.addConstraint(Sketcher.Constraint("DistanceY", 1, 2, 1, 1, 140.0))
sketch14.addConstraint(Sketcher.Constraint("DistanceX", 0, 2, 0, 1, 27.5))
sketch14.addConstraint(Sketcher.Constraint("DistanceX", 2, 2, -1, 1, 24.0))
sketch14.addConstraint(Sketcher.Constraint("DistanceY", -1, 1, 0, 2, 71.25))
pad4 = body.newObject("PartDesign::Pad", "Pad003")
pad4.Profile = sketch14
pad4.Length = 50
pad4.Reversed = True

sketch15 = body.newObject("Sketcher::SketchObject", "Sketch014")
sketch15.AttachmentSupport = (doc.getObject("XY_Plane"), [""])
sketch15.MapMode = "FlatFace"
sketch15.AttachmentOffset = App.Placement(V(0, 0, 71.25), App.Rotation())
sketch15.addGeometry(Part.LineSegment(V(-19, -24, 0), V(-19, -31, 0)), False)
sketch15.addGeometry(Part.LineSegment(V(-19, -31, 0), V(19, -31, 0)), False)
sketch15.addGeometry(Part.LineSegment(V(19, -31, 0), V(19, -24, 0)), False)
sketch15.addGeometry(Part.LineSegment(V(19, -24, 0), V(-19, -24, 0)), False)
sketch15.addConstraint(Sketcher.Constraint("Coincident", 0, 2, 1, 1))
sketch15.addConstraint(Sketcher.Constraint("Coincident", 1, 2, 2, 1))
sketch15.addConstraint(Sketcher.Constraint("Coincident", 2, 2, 3, 1))
sketch15.addConstraint(Sketcher.Constraint("Coincident", 3, 2, 0, 1))
sketch15.addConstraint(Sketcher.Constraint("Vertical", 0))
sketch15.addConstraint(Sketcher.Constraint("Horizontal", 1))
sketch15.addConstraint(Sketcher.Constraint("Vertical", 2))
sketch15.addConstraint(Sketcher.Constraint("Horizontal", 3))
sketch15.addConstraint(Sketcher.Constraint("DistanceX", 1, 1, 1, 2, 38.0))
sketch15.addConstraint(Sketcher.Constraint("DistanceY", 0, 2, 0, 1, 7.0))
sketch15.addConstraint(Sketcher.Constraint("DistanceX", 0, 2, -1, 1, 19.0))
sketch15.addConstraint(Sketcher.Constraint("DistanceY", 0, 2, -1, 1, 31.0))
pocket11 = body.newObject("PartDesign::Pocket", "Pocket010")
pocket11.Profile = sketch15
pocket11.Type = "ThroughAll"

sketch16 = body.newObject("Sketcher::SketchObject", "Sketch015")
sketch16.AttachmentSupport = (doc.getObject("YZ_Plane"), [""])
sketch16.MapMode = "FlatFace"
sketch16.AttachmentOffset = App.Placement(V(0, 0, 25), App.Rotation())
sketch16.addGeometry(Part.LineSegment(V(-24, 71, 0), V(-52, 71, 0)), False)
sketch16.addGeometry(Part.LineSegment(V(-52, 71, 0), V(-52, 14, 0)), False)
sketch16.addGeometry(Part.LineSegment(V(-52, 14, 0), V(-24, 14, 0)), False)
sketch16.addGeometry(Part.LineSegment(V(-24, 14, 0), V(-24, 71, 0)), False)
sketch16.addConstraint(Sketcher.Constraint("Coincident", 0, 2, 1, 1))
sketch16.addConstraint(Sketcher.Constraint("Coincident", 1, 2, 2, 1))
sketch16.addConstraint(Sketcher.Constraint("Coincident", 2, 2, 3, 1))
sketch16.addConstraint(Sketcher.Constraint("Coincident", 3, 2, 0, 1))
sketch16.addConstraint(Sketcher.Constraint("Horizontal", 0))
sketch16.addConstraint(Sketcher.Constraint("Vertical", 1))
sketch16.addConstraint(Sketcher.Constraint("Horizontal", 2))
sketch16.addConstraint(Sketcher.Constraint("Vertical", 3))
sketch16.addConstraint(Sketcher.Constraint("DistanceX", 0, 2, 0, 1, 27.5))
sketch16.addConstraint(Sketcher.Constraint("DistanceY", 1, 2, 1, 1, 57.5))
sketch16.addConstraint(Sketcher.Constraint("DistanceX", 2, 2, -1, 1, 24.0))
sketch16.addConstraint(Sketcher.Constraint("DistanceY", -1, 1, 0, 2, 71.25))
pocket12 = body.newObject("PartDesign::Pocket", "Pocket011")
pocket12.Profile = sketch16
pocket12.Type = "ThroughAll"

sketch17 = body.newObject("Sketcher::SketchObject", "Sketch016")
sketch17.AttachmentSupport = (doc.getObject("YZ_Plane"), [""])
sketch17.MapMode = "FlatFace"
sketch17.AttachmentOffset = App.Placement(V(0, 0, 25), App.Rotation())
sketch17.addGeometry(Part.LineSegment(V(-52, 14, 0), V(-24, -16, 0)), False)
sketch17.addGeometry(Part.LineSegment(V(-24, -16, 0), V(-24, 14, 0)), False)
sketch17.addGeometry(Part.LineSegment(V(-24, 14, 0), V(-52, 14, 0)), False)
sketch17.addConstraint(Sketcher.Constraint("Coincident", 0, 2, 1, 1))
sketch17.addConstraint(Sketcher.Constraint("Coincident", 1, 2, 2, 1))
sketch17.addConstraint(Sketcher.Constraint("Coincident", 2, 2, 0, 1))
sketch17.addConstraint(Sketcher.Constraint("Vertical", 1))
sketch17.addConstraint(Sketcher.Constraint("Horizontal", 2))
sketch17.addConstraint(Sketcher.Constraint("DistanceY", 1, 1, 1, 2, 30.0))
sketch17.addConstraint(Sketcher.Constraint("DistanceX", 2, 2, 2, 1, 27.5))
sketch17.addConstraint(Sketcher.Constraint("DistanceX", 0, 2, -1, 1, 24.0))
sketch17.addConstraint(Sketcher.Constraint("DistanceY", 0, 2, -1, 1, 16.25))
pocket13 = body.newObject("PartDesign::Pocket", "Pocket012")
pocket13.Profile = sketch17
pocket13.Type = "ThroughAll"

sketch18 = body.newObject("Sketcher::SketchObject", "Sketch017")
sketch18.AttachmentSupport = (doc.getObject("YZ_Plane"), [""])
sketch18.MapMode = "FlatFace"
sketch18.AttachmentOffset = App.Placement(V(0, 0, 25), App.Rotation())
sketch18.addGeometry(Part.LineSegment(V(-51.5, 13.8, 0), V(-54, 13.8, 0)), False)
sketch18.addGeometry(Part.LineSegment(V(-54, 13.8, 0), V(-54, -68.8, 0)), False)
sketch18.addGeometry(Part.LineSegment(V(-54, -68.8, 0), V(-51.5, -68.8, 0)), False)
sketch18.addGeometry(Part.LineSegment(V(-51.5, -68.8, 0), V(-51.5, 13.8, 0)), False)
sketch18.addConstraint(Sketcher.Constraint("Coincident", 0, 2, 1, 1))
sketch18.addConstraint(Sketcher.Constraint("Coincident", 1, 2, 2, 1))
sketch18.addConstraint(Sketcher.Constraint("Coincident", 2, 2, 3, 1))
sketch18.addConstraint(Sketcher.Constraint("Coincident", 3, 2, 0, 1))
sketch18.addConstraint(Sketcher.Constraint("Horizontal", 0))
sketch18.addConstraint(Sketcher.Constraint("Vertical", 1))
sketch18.addConstraint(Sketcher.Constraint("Horizontal", 2))
sketch18.addConstraint(Sketcher.Constraint("Vertical", 3))
sketch18.addConstraint(Sketcher.Constraint("DistanceX", 0, 2, 0, 1, 2.5))
sketch18.addConstraint(Sketcher.Constraint("DistanceY", 1, 2, 1, 1, 82.5))
sketch18.addConstraint(Sketcher.Constraint("DistanceX", 0, 2, -1, 1, 54.0))
sketch18.addConstraint(Sketcher.Constraint("DistanceY", -1, 1, 0, 2, 13.75))
pad5 = body.newObject("PartDesign::Pad", "Pad004")
pad5.Profile = sketch18
pad5.Length = 50
pad5.Reversed = True

sketch19 = body.newObject("Sketcher::SketchObject", "Sketch018")
sketch19.AttachmentSupport = (doc.getObject("YZ_Plane"), [""])
sketch19.MapMode = "FlatFace"
sketch19.AttachmentOffset = App.Placement(V(0, 0, 25), App.Rotation())
sketch19.addGeometry(Part.LineSegment(V(-24, -47, 0), V(-41, -47, 0)), False)
sketch19.addGeometry(Part.LineSegment(V(-41, -47, 0), V(-41, -69, 0)), False)
sketch19.addGeometry(Part.LineSegment(V(-41, -69, 0), V(-24, -69, 0)), False)
sketch19.addGeometry(Part.LineSegment(V(-24, -69, 0), V(-24, -47, 0)), False)
sketch19.addConstraint(Sketcher.Constraint("Coincident", 0, 2, 1, 1))
sketch19.addConstraint(Sketcher.Constraint("Coincident", 1, 2, 2, 1))
sketch19.addConstraint(Sketcher.Constraint("Coincident", 2, 2, 3, 1))
sketch19.addConstraint(Sketcher.Constraint("Coincident", 3, 2, 0, 1))
sketch19.addConstraint(Sketcher.Constraint("Horizontal", 0))
sketch19.addConstraint(Sketcher.Constraint("Vertical", 1))
sketch19.addConstraint(Sketcher.Constraint("Horizontal", 2))
sketch19.addConstraint(Sketcher.Constraint("Vertical", 3))
sketch19.addConstraint(Sketcher.Constraint("DistanceX", 0, 2, 0, 1, 17.0))
sketch19.addConstraint(Sketcher.Constraint("DistanceY", 1, 2, 1, 1, 22.0))
sketch19.addConstraint(Sketcher.Constraint("DistanceX", 0, 2, -1, 1, 41.0))
sketch19.addConstraint(Sketcher.Constraint("DistanceY", 0, 2, -1, 1, 46.75))
pocket14 = body.newObject("PartDesign::Pocket", "Pocket013")
pocket14.Profile = sketch19
pocket14.Type = "ThroughAll"

sketch20 = body.newObject("Sketcher::SketchObject", "Sketch019")
sketch20.AttachmentSupport = (doc.getObject("XZ_Plane"), [""])
sketch20.MapMode = "FlatFace"
sketch20.AttachmentOffset = App.Placement(V(0, 0, 31), App.Rotation())
sketch20.addGeometry(Part.LineSegment(V(-19, -47, 0), V(-19, -9, 0)), False)
sketch20.addGeometry(Part.LineSegment(V(-19, -9, 0), V(19, -9, 0)), False)
sketch20.addGeometry(Part.LineSegment(V(19, -9, 0), V(19, -47, 0)), False)
sketch20.addGeometry(Part.LineSegment(V(19, -47, 0), V(-19, -47, 0)), False)
sketch20.addConstraint(Sketcher.Constraint("Coincident", 0, 2, 1, 1))
sketch20.addConstraint(Sketcher.Constraint("Coincident", 1, 2, 2, 1))
sketch20.addConstraint(Sketcher.Constraint("Coincident", 2, 2, 3, 1))
sketch20.addConstraint(Sketcher.Constraint("Coincident", 3, 2, 0, 1))
sketch20.addConstraint(Sketcher.Constraint("Vertical", 0))
sketch20.addConstraint(Sketcher.Constraint("Horizontal", 1))
sketch20.addConstraint(Sketcher.Constraint("Vertical", 2))
sketch20.addConstraint(Sketcher.Constraint("Horizontal", 3))
sketch20.addConstraint(Sketcher.Constraint("DistanceX", 1, 1, 1, 2, 38.0))
sketch20.addConstraint(Sketcher.Constraint("DistanceX", 0, 2, -1, 1, 19.0))
sketch20.addConstraint(Sketcher.Constraint("DistanceY", 2, 2, -1, 1, 46.75))
sketch20.addConstraint(Sketcher.Constraint("DistanceY", 0, 1, 0, 2, 38.136364))
pocket15 = body.newObject("PartDesign::Pocket", "Pocket014")
pocket15.Profile = sketch20
pocket15.Length = 10
pocket15.Reversed = True

doc.recompute()
